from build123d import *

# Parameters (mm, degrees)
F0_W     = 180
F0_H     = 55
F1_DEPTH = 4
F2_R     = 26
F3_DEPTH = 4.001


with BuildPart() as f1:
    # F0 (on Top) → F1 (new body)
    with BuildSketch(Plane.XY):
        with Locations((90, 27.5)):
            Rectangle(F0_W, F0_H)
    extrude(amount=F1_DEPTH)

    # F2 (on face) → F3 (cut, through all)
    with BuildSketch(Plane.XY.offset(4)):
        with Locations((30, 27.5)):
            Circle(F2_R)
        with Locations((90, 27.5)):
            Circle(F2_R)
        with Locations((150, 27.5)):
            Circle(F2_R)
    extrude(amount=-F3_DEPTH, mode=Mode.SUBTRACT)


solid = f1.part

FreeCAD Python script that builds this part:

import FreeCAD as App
import Part
import Sketcher

V = App.Vector

doc = App.newDocument("Part")
params = doc.addObject("Spreadsheet::Sheet", "Params")
for row, (alias, value) in enumerate([
    ("sketch1_width", "180 mm"),
    ("sketch1_height", "55 mm"),
    ("pad1_length", "4 mm"),
    ("sketch2_diameter", "52 mm"),
], start=1):
    params.set(f"A{row}", alias)
    params.set(f"B{row}", "=" + value)
    params.setAlias(f"B{row}", alias)

body = doc.addObject("PartDesign::Body", "Body")

# Sketch on XY plane
sketch1 = body.newObject("Sketcher::SketchObject", "Sketch")
sketch1.AttachmentSupport = (doc.getObject("XY_Plane"), [""])
sketch1.MapMode = "FlatFace"
sketch1.addGeometry(Part.LineSegment(V(0, 55, 0), V(0, 0, 0)), False)
sketch1.addGeometry(Part.LineSegment(V(0, 0, 0), V(180, 0, 0)), False)
sketch1.addGeometry(Part.LineSegment(V(180, 0, 0), V(180, 55, 0)), False)
sketch1.addGeometry(Part.LineSegment(V(180, 55, 0), V(0, 55, 0)), False)
sketch1.addConstraint(Sketcher.Constraint("Coincident", 0, 2, 1, 1))
sketch1.addConstraint(Sketcher.Constraint("Coincident", 1, 2, 2, 1))
sketch1.addConstraint(Sketcher.Constraint("Coincident", 2, 2, 3, 1))
sketch1.addConstraint(Sketcher.Constraint("Coincident", 3, 2, 0, 1))
sketch1.addConstraint(Sketcher.Constraint("Vertical", 0))
sketch1.addConstraint(Sketcher.Constraint("Horizontal", 1))
sketch1.addConstraint(Sketcher.Constraint("Vertical", 2))
sketch1.addConstraint(Sketcher.Constraint("Horizontal", 3))
sketch1.addConstraint(Sketcher.Constraint("Coincident", 0, 2, -1, 1))
sketch1.addConstraint(Sketcher.Constraint("DistanceX", 1, 1, 1, 2, 180.0))
sketch1.addConstraint(Sketcher.Constraint("DistanceY", 0, 2, 0, 1, 55.0))
sketch1.setExpression("Constraints[9]", "Params.sketch1_width")
sketch1.setExpression("Constraints[10]", "Params.sketch1_height")
pad1 = body.newObject("PartDesign::Pad", "Pad")
pad1.Profile = sketch1
pad1.setExpression("Length", "Params.pad1_length")

# Sketch on XY plane
sketch2 = body.newObject("Sketcher::SketchObject", "Sketch001")
sketch2.AttachmentSupport = (doc.getObject("XY_Plane"), [""])
sketch2.MapMode = "FlatFace"
sketch2.AttachmentOffset = App.Placement(V(0, 0, 4), App.Rotation())
sketch2.addGeometry(Part.Circle(V(30, 28, 0), V(0, 0, 1), 26), False)
sketch2.addGeometry(Part.Circle(V(90, 28, 0), V(0, 0, 1), 26), False)
sketch2.addGeometry(Part.Circle(V(150, 28, 0), V(0, 0, 1), 26), False)
sketch2.addConstraint(Sketcher.Constraint("Equal", 0, 1))
sketch2.addConstraint(Sketcher.Constraint("Equal", 1, 2))
sketch2.addConstraint(Sketcher.Constraint("Horizontal", 0, 3, 1, 3))
sketch2.addConstraint(Sketcher.Constraint("Horizontal", 1, 3, 2, 3))
sketch2.addConstraint(Sketcher.Constraint("Diameter", 0, 52.0))
sketch2.addConstraint(Sketcher.Constraint("DistanceX", -1, 1, 0, 3, 30.0))
sketch2.addConstraint(Sketcher.Constraint("DistanceX", -1, 1, 1, 3, 90.0))
sketch2.addConstraint(Sketcher.Constraint("DistanceX", -1, 1, 2, 3, 150.0))
sketch2.addConstraint(Sketcher.Constraint("DistanceY", -1, 1, 0, 3, 27.5))
sketch2.setExpression("Constraints[4]", "Params.sketch2_diameter")
pocket1 = body.newObject("PartDesign::Pocket", "Pocket")
pocket1.Profile = sketch2
pocket1.Type = "ThroughAll"

doc.recompute()
